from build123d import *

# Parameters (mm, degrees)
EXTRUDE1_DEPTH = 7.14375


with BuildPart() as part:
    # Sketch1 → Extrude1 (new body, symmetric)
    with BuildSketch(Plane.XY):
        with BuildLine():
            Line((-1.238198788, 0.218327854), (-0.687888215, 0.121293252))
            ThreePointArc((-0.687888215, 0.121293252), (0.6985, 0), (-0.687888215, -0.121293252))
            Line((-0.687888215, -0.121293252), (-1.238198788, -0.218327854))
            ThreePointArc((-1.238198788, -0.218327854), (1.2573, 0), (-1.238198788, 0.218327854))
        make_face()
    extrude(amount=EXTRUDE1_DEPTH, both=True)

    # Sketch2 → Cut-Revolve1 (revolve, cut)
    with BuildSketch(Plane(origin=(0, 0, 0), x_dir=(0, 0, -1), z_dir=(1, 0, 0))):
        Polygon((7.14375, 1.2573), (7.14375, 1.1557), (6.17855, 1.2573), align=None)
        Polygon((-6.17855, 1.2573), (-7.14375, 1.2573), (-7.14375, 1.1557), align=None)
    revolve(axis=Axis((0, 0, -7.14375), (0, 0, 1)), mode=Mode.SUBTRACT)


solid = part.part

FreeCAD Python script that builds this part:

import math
import FreeCAD as App
import Part
import Sketcher
Q = App.Units.Quantity

doc = App.newDocument("Part")
body = doc.addObject("PartDesign::Body", "Body")

# Sketch on XY plane
sketch1 = doc.addObject("Sketcher::SketchObject", "Sketch")
body.addObject(sketch1)
sketch1.AttachmentSupport = (doc.XY_Plane, [""])
sketch1.MapMode = "FlatFace"
sketch1.addGeometry(Part.LineSegment(App.Vector(-1.24, 0.22, 0), App.Vector(-0.69, 0.12, 0)), False)
sketch1.addGeometry(Part.ArcOfCircle(Part.Circle(App.Vector(0, 0, 0), App.Vector(0, 0, 1), 0.7), math.radians(-170), math.radians(170)), False)
sketch1.addGeometry(Part.LineSegment(App.Vector(-0.69, -0.12, 0), App.Vector(-1.24, -0.22, 0)), False)
sketch1.addGeometry(Part.ArcOfCircle(Part.Circle(App.Vector(0, 0, 0), App.Vector(0, 0, 1), 1.26), math.radians(-170), math.radians(170)), False)
sketch1.addConstraint(Sketcher.Constraint("Coincident", 0, 2, 1, 2))
sketch1.addConstraint(Sketcher.Constraint("Coincident", 1, 1, 2, 1))
sketch1.addConstraint(Sketcher.Constraint("Coincident", 2, 2, 3, 1))
sketch1.addConstraint(Sketcher.Constraint("Coincident", 3, 2, 0, 1))
sketch1.addConstraint(Sketcher.Constraint("Coincident", 1, 3, -1, 1))
sketch1.addConstraint(Sketcher.Constraint("Coincident", 3, 3, -1, 1))
sketch1.addConstraint(Sketcher.Constraint("Vertical", 0, 2, 1, 1))
sketch1.addConstraint(Sketcher.Constraint("Vertical", 2, 2, 3, 2))
sketch1.addConstraint(Sketcher.Constraint("Angle", 0, Q("-10 deg")))
sketch1.addConstraint(Sketcher.Constraint("Radius", 1, Q("0.0275 in")))
sketch1.addConstraint(Sketcher.Constraint("Radius", 3, Q("0.0495 in")))
sketch1.addConstraint(Sketcher.Constraint("DistanceX", 2, 2, -1, 1, Q("1.238199 mm")))
pad1 = doc.addObject("PartDesign::Pad", "Pad")
body.addObject(pad1)
pad1.Profile = sketch1
pad1.Length = Q("0.5625 in")
pad1.Midplane = True

# Sketch on YZ plane
sketch2 = doc.addObject("Sketcher::SketchObject", "Sketch001")
body.addObject(sketch2)
sketch2.AttachmentSupport = (doc.YZ_Plane, [""])
sketch2.MapMode = "FlatFace"
sketch2.addGeometry(Part.LineSegment(App.Vector(1.16, -7.14, 0), App.Vector(1.26, -7.14, 0)), False)
sketch2.addGeometry(Part.LineSegment(App.Vector(1.26, -7.14, 0), App.Vector(1.26, -6.18, 0)), False)
sketch2.addGeometry(Part.LineSegment(App.Vector(1.26, -6.18, 0), App.Vector(1.16, -7.14, 0)), False)
sketch2.addGeometry(Part.LineSegment(App.Vector(1.26, 6.18, 0), App.Vector(1.26, 7.14, 0)), False)
sketch2.addGeometry(Part.LineSegment(App.Vector(1.26, 7.14, 0), App.Vector(1.16, 7.14, 0)), False)
sketch2.addGeometry(Part.LineSegment(App.Vector(1.16, 7.14, 0), App.Vector(1.26, 6.18, 0)), False)
sketch2.addConstraint(Sketcher.Constraint("Coincident", 0, 2, 1, 1))
sketch2.addConstraint(Sketcher.Constraint("Coincident", 1, 2, 2, 1))
sketch2.addConstraint(Sketcher.Constraint("Coincident", 2, 2, 0, 1))
sketch2.addConstraint(Sketcher.Constraint("Coincident", 3, 2, 4, 1))
sketch2.addConstraint(Sketcher.Constraint("Coincident", 4, 2, 5, 1))
sketch2.addConstraint(Sketcher.Constraint("Coincident", 5, 2, 3, 1))
sketch2.addConstraint(Sketcher.Constraint("Horizontal", 0))
sketch2.addConstraint(Sketcher.Constraint("Vertical", 1))
sketch2.addConstraint(Sketcher.Constraint("Vertical", 3))
sketch2.addConstraint(Sketcher.Constraint("Horizontal", 4))
sketch2.addConstraint(Sketcher.Constraint("Symmetric", 0, 2, 3, 2, -1))
sketch2.addConstraint(Sketcher.Constraint("Vertical", 2, 2, 4, 2))
sketch2.addConstraint(Sketcher.Constraint("Equal", 1, 3))
sketch2.addConstraint(Sketcher.Constraint("DistanceX", 0, 1, 0, 2, Q("0.004 in")))
sketch2.addConstraint(Sketcher.Constraint("DistanceY", 1, 1, 1, 2, Q("0.038 in")))
sketch2.addConstraint(Sketcher.Constraint("DistanceY", 0, 2, -1, 1, Q("0.28125 in")))
sketch2.addConstraint(Sketcher.Constraint("DistanceX", -1, 1, 0, 2, Q("0.0495 in")))
groove = doc.addObject("PartDesign::Groove", "Groove")
body.addObject(groove)
groove.Profile = sketch2
groove.ReferenceAxis = (sketch2, ["V_Axis"])
groove.Angle = 360

doc.recompute()
